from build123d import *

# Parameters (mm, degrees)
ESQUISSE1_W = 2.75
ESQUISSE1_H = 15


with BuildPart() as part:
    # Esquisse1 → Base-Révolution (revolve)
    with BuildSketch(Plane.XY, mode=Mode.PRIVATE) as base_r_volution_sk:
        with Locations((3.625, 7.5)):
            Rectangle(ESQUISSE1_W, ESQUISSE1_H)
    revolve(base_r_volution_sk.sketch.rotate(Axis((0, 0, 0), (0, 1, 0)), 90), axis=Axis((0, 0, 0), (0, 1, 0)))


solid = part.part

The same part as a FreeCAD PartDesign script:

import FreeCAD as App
import Part
import Sketcher
from FreeCAD import Vector
Q = App.Units.Quantity


def add_polygon(sketch, points):
    """Adds a closed chain of lines whose ends are joined by coincident constraints."""
    first, n = sketch.GeometryCount, len(points)
    for a, b in zip(points, points[1:] + points[:1]):
        sketch.addGeometry(Part.LineSegment(App.Vector(*a, 0), App.Vector(*b, 0)), False)
    for i in range(n):
        sketch.addConstraint(Sketcher.Constraint("Coincident", first + i, 2, first + (i + 1) % n, 1))

doc = App.newDocument("Part")
params = doc.addObject("Spreadsheet::Sheet", "Params")
for row, (alias, value) in enumerate([
    ("sketch1_height", "15 mm"),
    ("sketch1_width", "2.75 mm"),
    ("revolution_angle", "360 deg"),
], start=1):
    params.set(f"A{row}", alias)
    params.set(f"B{row}", "=" + value)
    params.setAlias(f"B{row}", alias)

body = doc.addObject("PartDesign::Body", "Body")

# Sketch on XY plane
sketch1 = body.newObject("Sketcher::SketchObject", "Sketch")
sketch1.AttachmentSupport = (doc.getObject("XY_Plane"), [""])
sketch1.MapMode = "FlatFace"
add_polygon(sketch1, [(2.2, 15), (2.2, 0), (5, 0), (5, 15)])  # lines 0-3
sketch1.addConstraint([
    Sketcher.Constraint("Vertical", 0),
    Sketcher.Constraint("Horizontal", 1),
    Sketcher.Constraint("Vertical", 2),
    Sketcher.Constraint("Horizontal", 3),
    Sketcher.Constraint("PointOnObject", 0, 2, -1),
    Sketcher.Constraint("DistanceY", 0, 2, 0, 1, Q("15 mm")),
    Sketcher.Constraint("DistanceX", -1, 1, 1, 2, Q("5 mm")),
    Sketcher.Constraint("DistanceX", 1, 1, 1, 2, Q("2.75 mm")),
])
sketch1.setExpression("Constraints[9]", "Params.sketch1_height")
sketch1.setExpression("Constraints[11]", "Params.sketch1_width")
revolution = body.newObject("PartDesign::Revolution", "Revolution")
revolution.Profile = sketch1
revolution.ReferenceAxis = (sketch1, ["V_Axis"])
revolution.setExpression("Angle", "Params.revolution_angle")

doc.recompute()
